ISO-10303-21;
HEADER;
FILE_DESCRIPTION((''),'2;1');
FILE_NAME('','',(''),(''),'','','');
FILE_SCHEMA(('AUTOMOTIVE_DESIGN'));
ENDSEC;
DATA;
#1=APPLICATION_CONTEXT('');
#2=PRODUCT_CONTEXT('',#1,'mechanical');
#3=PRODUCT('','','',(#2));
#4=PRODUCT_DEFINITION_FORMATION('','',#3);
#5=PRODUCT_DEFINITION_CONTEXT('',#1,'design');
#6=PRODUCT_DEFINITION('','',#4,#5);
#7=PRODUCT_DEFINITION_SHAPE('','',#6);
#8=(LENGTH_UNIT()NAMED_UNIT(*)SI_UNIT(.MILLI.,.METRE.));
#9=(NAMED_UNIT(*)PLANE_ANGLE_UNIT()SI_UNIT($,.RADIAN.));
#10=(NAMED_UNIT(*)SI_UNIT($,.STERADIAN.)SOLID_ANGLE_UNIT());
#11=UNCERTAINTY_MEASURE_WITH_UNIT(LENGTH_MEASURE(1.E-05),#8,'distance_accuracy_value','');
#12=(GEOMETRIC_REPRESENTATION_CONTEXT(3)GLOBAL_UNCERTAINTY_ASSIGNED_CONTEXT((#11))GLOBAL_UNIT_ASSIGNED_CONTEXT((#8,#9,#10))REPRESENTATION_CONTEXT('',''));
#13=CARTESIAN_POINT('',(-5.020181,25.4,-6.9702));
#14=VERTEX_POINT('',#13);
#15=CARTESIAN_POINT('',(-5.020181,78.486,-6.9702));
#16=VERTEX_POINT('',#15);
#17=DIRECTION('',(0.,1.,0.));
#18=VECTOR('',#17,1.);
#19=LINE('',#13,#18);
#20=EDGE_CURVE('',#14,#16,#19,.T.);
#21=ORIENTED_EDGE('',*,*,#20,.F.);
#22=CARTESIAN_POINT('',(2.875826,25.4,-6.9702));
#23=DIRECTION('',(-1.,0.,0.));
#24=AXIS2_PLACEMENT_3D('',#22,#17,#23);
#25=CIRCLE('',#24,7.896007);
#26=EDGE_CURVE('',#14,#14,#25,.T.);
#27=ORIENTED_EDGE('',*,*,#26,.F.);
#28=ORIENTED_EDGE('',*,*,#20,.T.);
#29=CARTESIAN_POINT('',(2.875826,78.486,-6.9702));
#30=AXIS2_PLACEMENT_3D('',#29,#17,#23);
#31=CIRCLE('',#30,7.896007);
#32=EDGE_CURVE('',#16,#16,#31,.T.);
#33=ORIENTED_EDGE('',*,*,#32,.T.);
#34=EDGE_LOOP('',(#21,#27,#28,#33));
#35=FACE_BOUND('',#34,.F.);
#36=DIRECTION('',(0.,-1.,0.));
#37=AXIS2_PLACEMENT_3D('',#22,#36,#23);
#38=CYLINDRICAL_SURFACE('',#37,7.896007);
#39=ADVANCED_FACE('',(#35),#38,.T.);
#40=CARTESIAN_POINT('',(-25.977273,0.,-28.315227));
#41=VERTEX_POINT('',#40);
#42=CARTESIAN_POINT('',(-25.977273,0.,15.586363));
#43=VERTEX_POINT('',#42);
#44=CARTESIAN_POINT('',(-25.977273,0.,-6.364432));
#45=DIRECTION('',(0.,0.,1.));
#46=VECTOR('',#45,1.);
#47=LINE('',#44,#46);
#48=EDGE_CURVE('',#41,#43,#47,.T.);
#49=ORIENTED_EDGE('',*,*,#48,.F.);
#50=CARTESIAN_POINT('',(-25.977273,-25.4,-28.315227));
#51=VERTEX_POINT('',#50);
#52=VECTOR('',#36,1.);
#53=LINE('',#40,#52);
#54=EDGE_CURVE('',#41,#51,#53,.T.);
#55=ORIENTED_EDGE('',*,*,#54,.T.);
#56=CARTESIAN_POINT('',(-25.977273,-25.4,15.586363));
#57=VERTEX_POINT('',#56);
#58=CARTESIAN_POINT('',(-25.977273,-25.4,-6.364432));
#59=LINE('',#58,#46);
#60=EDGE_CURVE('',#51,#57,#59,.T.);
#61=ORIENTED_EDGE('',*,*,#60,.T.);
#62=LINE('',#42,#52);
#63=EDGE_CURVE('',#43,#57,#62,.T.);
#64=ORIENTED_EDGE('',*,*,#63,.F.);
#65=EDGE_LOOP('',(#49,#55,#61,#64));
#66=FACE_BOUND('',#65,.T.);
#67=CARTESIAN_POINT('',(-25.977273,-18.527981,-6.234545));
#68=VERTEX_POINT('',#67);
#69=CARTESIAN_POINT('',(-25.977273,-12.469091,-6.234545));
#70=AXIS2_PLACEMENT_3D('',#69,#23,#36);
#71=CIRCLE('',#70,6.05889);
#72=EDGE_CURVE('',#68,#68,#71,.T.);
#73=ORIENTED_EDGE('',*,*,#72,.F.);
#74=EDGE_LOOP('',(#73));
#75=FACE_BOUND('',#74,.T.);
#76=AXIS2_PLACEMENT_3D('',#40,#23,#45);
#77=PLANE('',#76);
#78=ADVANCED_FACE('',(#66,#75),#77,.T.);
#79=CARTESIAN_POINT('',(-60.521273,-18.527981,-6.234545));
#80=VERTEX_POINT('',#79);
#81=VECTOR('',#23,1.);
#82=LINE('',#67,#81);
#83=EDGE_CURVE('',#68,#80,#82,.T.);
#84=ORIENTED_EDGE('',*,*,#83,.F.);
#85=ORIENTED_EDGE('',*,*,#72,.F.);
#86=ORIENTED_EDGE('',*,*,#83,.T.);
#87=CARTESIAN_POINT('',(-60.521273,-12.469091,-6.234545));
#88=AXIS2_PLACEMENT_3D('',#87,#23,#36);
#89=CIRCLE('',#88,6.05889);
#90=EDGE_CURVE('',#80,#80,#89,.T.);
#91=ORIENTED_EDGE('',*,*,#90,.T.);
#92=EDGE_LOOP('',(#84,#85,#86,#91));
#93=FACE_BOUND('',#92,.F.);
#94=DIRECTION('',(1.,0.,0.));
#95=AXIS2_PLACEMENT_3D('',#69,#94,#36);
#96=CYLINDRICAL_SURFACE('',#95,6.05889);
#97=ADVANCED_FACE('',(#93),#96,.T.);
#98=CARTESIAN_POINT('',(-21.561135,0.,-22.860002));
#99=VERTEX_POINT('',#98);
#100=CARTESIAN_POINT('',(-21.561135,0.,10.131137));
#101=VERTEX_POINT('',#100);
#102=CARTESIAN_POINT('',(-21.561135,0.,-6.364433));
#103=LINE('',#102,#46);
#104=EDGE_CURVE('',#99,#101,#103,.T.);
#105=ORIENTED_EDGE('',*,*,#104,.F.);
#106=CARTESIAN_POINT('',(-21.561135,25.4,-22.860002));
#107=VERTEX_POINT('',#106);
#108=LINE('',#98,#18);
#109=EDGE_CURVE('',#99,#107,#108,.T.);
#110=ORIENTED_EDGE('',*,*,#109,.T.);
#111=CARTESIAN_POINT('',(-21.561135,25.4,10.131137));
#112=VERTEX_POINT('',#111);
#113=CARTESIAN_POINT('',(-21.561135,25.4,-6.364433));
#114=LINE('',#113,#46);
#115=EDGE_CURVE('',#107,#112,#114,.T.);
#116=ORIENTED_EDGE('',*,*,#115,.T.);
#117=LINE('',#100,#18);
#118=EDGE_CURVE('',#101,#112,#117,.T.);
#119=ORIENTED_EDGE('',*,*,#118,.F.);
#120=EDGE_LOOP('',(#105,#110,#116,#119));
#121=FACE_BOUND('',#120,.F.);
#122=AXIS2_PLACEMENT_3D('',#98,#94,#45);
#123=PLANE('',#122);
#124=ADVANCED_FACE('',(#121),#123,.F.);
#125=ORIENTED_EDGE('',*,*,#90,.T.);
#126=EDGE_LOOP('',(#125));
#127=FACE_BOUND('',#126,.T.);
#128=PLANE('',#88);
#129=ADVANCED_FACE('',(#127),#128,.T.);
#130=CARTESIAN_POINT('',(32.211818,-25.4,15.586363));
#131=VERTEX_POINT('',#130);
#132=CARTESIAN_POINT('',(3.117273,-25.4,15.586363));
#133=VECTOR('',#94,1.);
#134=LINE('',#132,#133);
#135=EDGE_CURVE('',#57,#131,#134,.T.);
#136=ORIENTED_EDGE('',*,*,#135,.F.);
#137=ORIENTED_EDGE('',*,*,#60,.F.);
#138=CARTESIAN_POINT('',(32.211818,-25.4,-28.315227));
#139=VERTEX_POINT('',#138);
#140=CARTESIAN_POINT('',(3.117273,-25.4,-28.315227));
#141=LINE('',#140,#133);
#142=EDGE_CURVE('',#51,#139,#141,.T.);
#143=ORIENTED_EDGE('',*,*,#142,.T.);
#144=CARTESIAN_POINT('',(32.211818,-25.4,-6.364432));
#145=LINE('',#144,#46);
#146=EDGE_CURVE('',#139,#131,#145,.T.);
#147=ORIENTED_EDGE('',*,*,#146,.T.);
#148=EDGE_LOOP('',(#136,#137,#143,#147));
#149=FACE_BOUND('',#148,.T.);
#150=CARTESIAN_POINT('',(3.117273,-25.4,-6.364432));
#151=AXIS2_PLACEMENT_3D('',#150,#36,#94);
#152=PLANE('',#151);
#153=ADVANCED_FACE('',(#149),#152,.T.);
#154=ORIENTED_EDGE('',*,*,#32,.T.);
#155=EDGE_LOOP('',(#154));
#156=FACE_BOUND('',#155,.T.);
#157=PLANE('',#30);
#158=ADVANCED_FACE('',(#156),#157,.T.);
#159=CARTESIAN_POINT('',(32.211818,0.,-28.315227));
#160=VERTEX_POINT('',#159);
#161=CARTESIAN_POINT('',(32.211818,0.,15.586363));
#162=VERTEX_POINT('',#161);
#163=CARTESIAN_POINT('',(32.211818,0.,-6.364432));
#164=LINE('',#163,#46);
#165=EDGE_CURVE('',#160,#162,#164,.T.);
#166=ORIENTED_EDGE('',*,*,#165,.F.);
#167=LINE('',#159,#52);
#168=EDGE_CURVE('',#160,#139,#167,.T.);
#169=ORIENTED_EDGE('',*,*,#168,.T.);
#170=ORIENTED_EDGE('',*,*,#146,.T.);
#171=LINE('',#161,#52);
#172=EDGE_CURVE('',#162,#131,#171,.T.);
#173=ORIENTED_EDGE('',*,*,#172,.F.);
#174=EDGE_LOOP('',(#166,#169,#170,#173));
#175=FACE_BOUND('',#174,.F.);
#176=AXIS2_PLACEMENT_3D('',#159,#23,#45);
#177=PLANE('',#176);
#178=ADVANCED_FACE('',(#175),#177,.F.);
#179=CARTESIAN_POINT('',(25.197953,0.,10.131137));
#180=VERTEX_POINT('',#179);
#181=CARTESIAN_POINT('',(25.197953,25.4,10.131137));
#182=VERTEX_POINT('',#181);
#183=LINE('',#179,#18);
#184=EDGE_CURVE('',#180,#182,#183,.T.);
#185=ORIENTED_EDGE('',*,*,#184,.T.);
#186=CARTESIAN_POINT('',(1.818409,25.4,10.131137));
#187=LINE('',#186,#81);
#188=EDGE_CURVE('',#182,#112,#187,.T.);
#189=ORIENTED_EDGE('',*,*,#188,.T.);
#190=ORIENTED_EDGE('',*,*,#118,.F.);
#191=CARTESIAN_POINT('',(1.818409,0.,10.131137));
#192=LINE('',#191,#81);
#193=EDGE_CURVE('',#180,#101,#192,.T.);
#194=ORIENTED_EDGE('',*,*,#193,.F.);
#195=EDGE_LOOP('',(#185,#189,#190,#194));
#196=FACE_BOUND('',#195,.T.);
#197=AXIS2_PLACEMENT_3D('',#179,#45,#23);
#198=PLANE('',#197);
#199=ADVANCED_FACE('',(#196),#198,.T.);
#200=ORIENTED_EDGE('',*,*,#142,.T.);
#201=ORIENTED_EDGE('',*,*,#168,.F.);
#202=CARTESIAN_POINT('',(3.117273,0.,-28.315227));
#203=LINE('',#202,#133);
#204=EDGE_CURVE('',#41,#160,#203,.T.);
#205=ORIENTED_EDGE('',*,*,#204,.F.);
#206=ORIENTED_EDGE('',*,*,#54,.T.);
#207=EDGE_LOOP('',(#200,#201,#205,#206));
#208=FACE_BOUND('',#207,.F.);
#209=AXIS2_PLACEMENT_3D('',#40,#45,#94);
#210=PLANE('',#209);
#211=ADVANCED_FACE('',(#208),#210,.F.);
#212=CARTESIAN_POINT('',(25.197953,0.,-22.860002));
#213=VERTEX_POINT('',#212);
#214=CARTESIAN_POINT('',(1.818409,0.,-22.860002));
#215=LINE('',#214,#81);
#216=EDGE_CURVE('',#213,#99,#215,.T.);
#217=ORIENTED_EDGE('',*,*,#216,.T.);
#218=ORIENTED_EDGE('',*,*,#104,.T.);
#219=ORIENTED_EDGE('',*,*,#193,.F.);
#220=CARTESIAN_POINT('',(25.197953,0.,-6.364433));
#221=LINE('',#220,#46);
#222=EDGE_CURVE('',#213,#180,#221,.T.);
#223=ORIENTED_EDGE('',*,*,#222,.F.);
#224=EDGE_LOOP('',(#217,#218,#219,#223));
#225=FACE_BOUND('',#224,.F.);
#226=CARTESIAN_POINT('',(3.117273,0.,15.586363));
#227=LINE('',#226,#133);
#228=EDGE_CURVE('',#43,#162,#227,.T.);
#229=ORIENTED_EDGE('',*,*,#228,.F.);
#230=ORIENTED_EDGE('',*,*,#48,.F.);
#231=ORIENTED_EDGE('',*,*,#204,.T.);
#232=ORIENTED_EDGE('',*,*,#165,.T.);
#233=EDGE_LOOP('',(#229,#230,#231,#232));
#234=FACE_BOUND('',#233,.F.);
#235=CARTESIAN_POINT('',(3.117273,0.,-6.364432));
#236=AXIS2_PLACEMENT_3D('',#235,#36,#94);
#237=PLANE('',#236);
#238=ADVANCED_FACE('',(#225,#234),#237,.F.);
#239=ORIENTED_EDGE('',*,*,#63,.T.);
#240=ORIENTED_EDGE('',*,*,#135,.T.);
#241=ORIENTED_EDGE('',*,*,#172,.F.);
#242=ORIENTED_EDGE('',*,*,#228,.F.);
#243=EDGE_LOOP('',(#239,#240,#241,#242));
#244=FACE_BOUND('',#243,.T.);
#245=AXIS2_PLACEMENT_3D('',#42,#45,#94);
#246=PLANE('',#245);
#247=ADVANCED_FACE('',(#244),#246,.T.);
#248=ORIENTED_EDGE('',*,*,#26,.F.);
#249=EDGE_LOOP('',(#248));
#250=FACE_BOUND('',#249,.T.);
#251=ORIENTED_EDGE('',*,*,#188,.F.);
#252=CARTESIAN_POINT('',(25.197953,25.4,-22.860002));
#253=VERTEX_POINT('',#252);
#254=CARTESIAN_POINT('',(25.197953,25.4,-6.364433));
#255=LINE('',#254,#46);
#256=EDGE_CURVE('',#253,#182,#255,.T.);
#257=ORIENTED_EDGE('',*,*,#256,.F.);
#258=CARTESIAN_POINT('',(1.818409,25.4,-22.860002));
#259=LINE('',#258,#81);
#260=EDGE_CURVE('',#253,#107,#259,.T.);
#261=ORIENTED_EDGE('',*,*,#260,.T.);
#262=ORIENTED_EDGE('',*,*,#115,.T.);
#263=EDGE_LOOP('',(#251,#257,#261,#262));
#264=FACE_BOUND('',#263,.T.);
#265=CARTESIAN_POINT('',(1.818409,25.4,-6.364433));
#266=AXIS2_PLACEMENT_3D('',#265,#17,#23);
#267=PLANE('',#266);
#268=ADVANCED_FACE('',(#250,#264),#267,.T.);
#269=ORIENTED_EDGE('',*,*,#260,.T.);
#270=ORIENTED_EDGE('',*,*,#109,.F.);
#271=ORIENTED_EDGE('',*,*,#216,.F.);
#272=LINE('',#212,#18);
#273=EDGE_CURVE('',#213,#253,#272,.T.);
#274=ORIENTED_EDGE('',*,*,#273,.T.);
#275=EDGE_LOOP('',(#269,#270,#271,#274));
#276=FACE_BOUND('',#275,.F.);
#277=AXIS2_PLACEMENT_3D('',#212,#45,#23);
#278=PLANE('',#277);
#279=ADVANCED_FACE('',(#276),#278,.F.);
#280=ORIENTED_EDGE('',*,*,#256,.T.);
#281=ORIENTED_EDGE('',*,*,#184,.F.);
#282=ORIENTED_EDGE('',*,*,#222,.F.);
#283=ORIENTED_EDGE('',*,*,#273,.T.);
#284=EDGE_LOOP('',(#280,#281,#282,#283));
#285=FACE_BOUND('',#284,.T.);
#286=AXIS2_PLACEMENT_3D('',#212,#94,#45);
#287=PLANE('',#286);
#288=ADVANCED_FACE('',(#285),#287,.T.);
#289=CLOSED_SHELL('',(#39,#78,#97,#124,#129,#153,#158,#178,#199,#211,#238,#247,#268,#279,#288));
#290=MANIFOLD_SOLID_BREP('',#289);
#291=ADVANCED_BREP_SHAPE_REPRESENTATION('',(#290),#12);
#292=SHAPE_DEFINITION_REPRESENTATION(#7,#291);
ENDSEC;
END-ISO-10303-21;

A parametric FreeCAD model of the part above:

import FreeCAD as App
import Part
import Sketcher

V = App.Vector
Q = App.Units.Quantity


def add_polygon(sketch, points):
    """Adds a closed chain of lines whose ends are joined by coincident constraints."""
    first, n = sketch.GeometryCount, len(points)
    for a, b in zip(points, points[1:] + points[:1]):
        sketch.addGeometry(Part.LineSegment(App.Vector(*a, 0), App.Vector(*b, 0)), False)
    for i in range(n):
        sketch.addConstraint(Sketcher.Constraint("Coincident", first + i, 2, first + (i + 1) % n, 1))

doc = App.newDocument("Part")
body = doc.addObject("PartDesign::Body", "Body")

# Sketch on XZ plane
sketch1 = body.newObject("Sketcher::SketchObject", "Sketch")
sketch1.AttachmentSupport = (doc.getObject("XZ_Plane"), [""])
sketch1.MapMode = "FlatFace"
add_polygon(sketch1, [(-26, 16), (-26, -28), (32, -28), (32, 16)])  # lines 0-3
sketch1.addConstraint([
    Sketcher.Constraint("Vertical", 0),
    Sketcher.Constraint("Horizontal", 1),
    Sketcher.Constraint("Vertical", 2),
    Sketcher.Constraint("Horizontal", 3),
    Sketcher.Constraint("DistanceX", 1, 1, 1, 2, Q("58.18909 mm")),
    Sketcher.Constraint("DistanceY", 0, 2, 0, 1, Q("43.901591 mm")),
    Sketcher.Constraint("DistanceX", 0, 2, -1, 1, Q("25.977273 mm")),
    Sketcher.Constraint("DistanceY", 0, 2, -1, 1, Q("28.315227 mm")),
])
pad1 = body.newObject("PartDesign::Pad", "Pad")
pad1.Profile = sketch1
pad1.Length = Q("1 in")

# Sketch on YZ plane
sketch2 = body.newObject("Sketcher::SketchObject", "Sketch001")
sketch2.AttachmentSupport = (doc.getObject("YZ_Plane"), [""])
sketch2.MapMode = "FlatFace"
sketch2.AttachmentOffset = App.Placement(V(0, 0, -25.977273), App.Rotation())
sketch2.addGeometry(Part.Circle(V(-12, -6, 0), V(0, 0, 1), 6), False)
sketch2.addConstraint([
    Sketcher.Constraint("Diameter", 0, Q("12.11778 mm")),
    Sketcher.Constraint("DistanceX", 0, 3, -1, 1, Q("12.469091 mm")),
    Sketcher.Constraint("DistanceY", 0, 3, -1, 1, Q("6.234545 mm")),
])
pad2 = body.newObject("PartDesign::Pad", "Pad001")
pad2.Profile = sketch2
pad2.Length = Q("1.36 in")
pad2.Reversed = True

# Sketch on XZ plane
sketch3 = body.newObject("Sketcher::SketchObject", "Sketch002")
sketch3.AttachmentSupport = (doc.getObject("XZ_Plane"), [""])
sketch3.MapMode = "FlatFace"
add_polygon(sketch3, [(25, 10), (25, -23), (-22, -23), (-22, 10)])  # lines 0-3
sketch3.addConstraint([
    Sketcher.Constraint("Vertical", 0),
    Sketcher.Constraint("Horizontal", 1),
    Sketcher.Constraint("Vertical", 2),
    Sketcher.Constraint("Horizontal", 3),
    Sketcher.Constraint("DistanceY", 0, 2, -1, 1, Q("0.9000001 in")),
    Sketcher.Constraint("DistanceY", 0, 2, 0, 1, Q("32.991138 mm")),
    Sketcher.Constraint("DistanceX", 1, 2, 1, 1, Q("46.759088 mm")),
    Sketcher.Constraint("DistanceX", -1, 1, 0, 2, Q("25.197953 mm")),
])
pad3 = body.newObject("PartDesign::Pad", "Pad002")
pad3.Profile = sketch3
pad3.Length = Q("1 in")
pad3.Reversed = True

# Sketch on XZ plane
sketch4 = body.newObject("Sketcher::SketchObject", "Sketch003")
sketch4.AttachmentSupport = (doc.getObject("XZ_Plane"), [""])
sketch4.MapMode = "FlatFace"
sketch4.AttachmentOffset = App.Placement(V(0, 0, -1 * 25.4), App.Rotation())
sketch4.addGeometry(Part.Circle(V(3, -7, 0), V(0, 0, 1), 8), False)
sketch4.addConstraint([
    Sketcher.Constraint("Diameter", 0, Q("15.792014 mm")),
    Sketcher.Constraint("DistanceY", 0, 3, -1, 1, Q("6.9702 mm")),
    Sketcher.Constraint("DistanceX", -1, 1, 0, 3, Q("2.875826 mm")),
])
pad4 = body.newObject("PartDesign::Pad", "Pad003")
pad4.Profile = sketch4
pad4.Length = Q("2.09 in")
pad4.Reversed = True

doc.recompute()
